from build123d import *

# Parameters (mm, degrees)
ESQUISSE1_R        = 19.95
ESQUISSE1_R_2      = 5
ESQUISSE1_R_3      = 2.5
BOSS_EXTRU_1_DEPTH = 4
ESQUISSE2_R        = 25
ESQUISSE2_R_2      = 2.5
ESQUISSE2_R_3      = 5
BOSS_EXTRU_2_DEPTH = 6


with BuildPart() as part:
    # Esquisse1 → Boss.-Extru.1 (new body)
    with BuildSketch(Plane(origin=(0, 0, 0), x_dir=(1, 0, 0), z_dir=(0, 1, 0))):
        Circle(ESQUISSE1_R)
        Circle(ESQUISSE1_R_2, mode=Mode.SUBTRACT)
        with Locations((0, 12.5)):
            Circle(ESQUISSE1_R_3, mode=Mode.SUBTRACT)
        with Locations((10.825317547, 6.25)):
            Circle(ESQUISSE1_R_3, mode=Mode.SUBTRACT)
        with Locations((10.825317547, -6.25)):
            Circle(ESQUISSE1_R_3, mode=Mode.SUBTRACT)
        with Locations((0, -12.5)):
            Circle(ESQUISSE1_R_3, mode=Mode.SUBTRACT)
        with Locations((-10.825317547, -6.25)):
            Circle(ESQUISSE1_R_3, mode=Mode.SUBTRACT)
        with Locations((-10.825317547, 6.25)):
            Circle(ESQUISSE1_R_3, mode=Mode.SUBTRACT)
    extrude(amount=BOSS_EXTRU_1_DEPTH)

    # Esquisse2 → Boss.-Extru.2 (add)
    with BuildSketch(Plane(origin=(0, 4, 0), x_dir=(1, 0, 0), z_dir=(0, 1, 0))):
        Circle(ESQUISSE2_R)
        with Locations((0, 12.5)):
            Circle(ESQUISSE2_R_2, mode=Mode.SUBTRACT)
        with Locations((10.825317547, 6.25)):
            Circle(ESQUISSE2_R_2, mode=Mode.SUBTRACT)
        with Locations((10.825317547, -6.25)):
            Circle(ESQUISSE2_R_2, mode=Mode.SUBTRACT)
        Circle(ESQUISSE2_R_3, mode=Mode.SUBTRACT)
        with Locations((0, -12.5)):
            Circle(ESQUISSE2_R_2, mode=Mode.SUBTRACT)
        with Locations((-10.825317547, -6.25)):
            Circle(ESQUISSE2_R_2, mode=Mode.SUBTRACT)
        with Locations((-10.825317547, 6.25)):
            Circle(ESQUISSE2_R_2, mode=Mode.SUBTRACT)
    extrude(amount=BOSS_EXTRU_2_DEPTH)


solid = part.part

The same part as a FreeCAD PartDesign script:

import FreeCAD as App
import Part
import Sketcher

V = App.Vector

doc = App.newDocument("Part")
body = doc.addObject("PartDesign::Body", "Body")

sketch1 = body.newObject("Sketcher::SketchObject", "Sketch")
sketch1.AttachmentSupport = (doc.getObject("XZ_Plane"), [""])
sketch1.MapMode = "FlatFace"
sketch1.addGeometry([
    Part.Circle(V(0, 0, 0), V(0, 0, 1), 19.9),
    Part.Circle(V(-10.8, 6.2, 0), V(0, 0, 1), 2.5),
    Part.Circle(V(0, 12.5, 0), V(0, 0, 1), 2.5),
    Part.Circle(V(10.8, 6.2, 0), V(0, 0, 1), 2.5),
    Part.Circle(V(-10.8, -6.2, 0), V(0, 0, 1), 2.5),
    Part.Circle(V(0, 0, 0), V(0, 0, 1), 5),
    Part.Circle(V(10.8, -6.2, 0), V(0, 0, 1), 2.5),
    Part.Circle(V(0, -12.5, 0), V(0, 0, 1), 2.5),
], False)
sketch1.addConstraint([
    Sketcher.Constraint("Coincident", 0, 3, -1, 1),
    Sketcher.Constraint("Coincident", 5, 3, -1, 1),
    Sketcher.Constraint("Equal", 1, 2),
    Sketcher.Constraint("Equal", 2, 3),
    Sketcher.Constraint("Equal", 3, 4),
    Sketcher.Constraint("Equal", 4, 6),
    Sketcher.Constraint("Equal", 6, 7),
    Sketcher.Constraint("Symmetric", 3, 3, 4, 3, -1, 1),
    Sketcher.Constraint("Symmetric", 1, 3, 6, 3, -1, 1),
    Sketcher.Constraint("Symmetric", 2, 3, 7, 3, -1, 1),
    Sketcher.Constraint("Symmetric", 1, 3, 3, 3, -2),
    Sketcher.Constraint("PointOnObject", 2, 3, -2),
    Sketcher.Constraint("Diameter", 1, 5.0),
    Sketcher.Constraint("Diameter", 5, 10.0),
    Sketcher.Constraint("Diameter", 0, 39.9),
    Sketcher.Constraint("DistanceY", -1, 1, 2, 3, 12.5),
    Sketcher.Constraint("DistanceY", 4, 3, 1, 3, 12.5),
    Sketcher.Constraint("DistanceX", 1, 3, -1, 1, 10.825318),
])
pad1 = body.newObject("PartDesign::Pad", "Pad")
pad1.Profile = sketch1
pad1.Length = 4
pad1.Reversed = True

sketch2 = body.newObject("Sketcher::SketchObject", "Sketch001")
sketch2.AttachmentSupport = (doc.getObject("XZ_Plane"), [""])
sketch2.MapMode = "FlatFace"
sketch2.AttachmentOffset = App.Placement(V(0, 0, -4), App.Rotation())
sketch2.addGeometry([
    Part.Circle(V(0, 0, 0), V(0, 0, 1), 25),
    Part.Circle(V(-10.8, 6.2, 0), V(0, 0, 1), 2.5),
    Part.Circle(V(0, 12.5, 0), V(0, 0, 1), 2.5),
    Part.Circle(V(10.8, 6.2, 0), V(0, 0, 1), 2.5),
    Part.Circle(V(-10.8, -6.2, 0), V(0, 0, 1), 2.5),
    Part.Circle(V(0, 0, 0), V(0, 0, 1), 5),
    Part.Circle(V(10.8, -6.2, 0), V(0, 0, 1), 2.5),
    Part.Circle(V(0, -12.5, 0), V(0, 0, 1), 2.5),
], False)
sketch2.addConstraint([
    Sketcher.Constraint("Coincident", 0, 3, -1, 1),
    Sketcher.Constraint("Coincident", 5, 3, -1, 1),
    Sketcher.Constraint("Equal", 1, 2),
    Sketcher.Constraint("Equal", 2, 3),
    Sketcher.Constraint("Equal", 3, 4),
    Sketcher.Constraint("Equal", 4, 6),
    Sketcher.Constraint("Equal", 6, 7),
    Sketcher.Constraint("Symmetric", 3, 3, 4, 3, -1, 1),
    Sketcher.Constraint("Symmetric", 1, 3, 6, 3, -1, 1),
    Sketcher.Constraint("Symmetric", 2, 3, 7, 3, -1, 1),
    Sketcher.Constraint("Symmetric", 1, 3, 3, 3, -2),
    Sketcher.Constraint("PointOnObject", 2, 3, -2),
    Sketcher.Constraint("Diameter", 0, 50.0),
    Sketcher.Constraint("Diameter", 1, 5.0),
    Sketcher.Constraint("Diameter", 5, 10.0),
    Sketcher.Constraint("DistanceY", -1, 1, 2, 3, 12.5),
    Sketcher.Constraint("DistanceY", 4, 3, 1, 3, 12.5),
    Sketcher.Constraint("DistanceX", 1, 3, -1, 1, 10.825318),
])
pad2 = body.newObject("PartDesign::Pad", "Pad001")
pad2.Profile = sketch2
pad2.Length = 6
pad2.Reversed = True

doc.recompute()
